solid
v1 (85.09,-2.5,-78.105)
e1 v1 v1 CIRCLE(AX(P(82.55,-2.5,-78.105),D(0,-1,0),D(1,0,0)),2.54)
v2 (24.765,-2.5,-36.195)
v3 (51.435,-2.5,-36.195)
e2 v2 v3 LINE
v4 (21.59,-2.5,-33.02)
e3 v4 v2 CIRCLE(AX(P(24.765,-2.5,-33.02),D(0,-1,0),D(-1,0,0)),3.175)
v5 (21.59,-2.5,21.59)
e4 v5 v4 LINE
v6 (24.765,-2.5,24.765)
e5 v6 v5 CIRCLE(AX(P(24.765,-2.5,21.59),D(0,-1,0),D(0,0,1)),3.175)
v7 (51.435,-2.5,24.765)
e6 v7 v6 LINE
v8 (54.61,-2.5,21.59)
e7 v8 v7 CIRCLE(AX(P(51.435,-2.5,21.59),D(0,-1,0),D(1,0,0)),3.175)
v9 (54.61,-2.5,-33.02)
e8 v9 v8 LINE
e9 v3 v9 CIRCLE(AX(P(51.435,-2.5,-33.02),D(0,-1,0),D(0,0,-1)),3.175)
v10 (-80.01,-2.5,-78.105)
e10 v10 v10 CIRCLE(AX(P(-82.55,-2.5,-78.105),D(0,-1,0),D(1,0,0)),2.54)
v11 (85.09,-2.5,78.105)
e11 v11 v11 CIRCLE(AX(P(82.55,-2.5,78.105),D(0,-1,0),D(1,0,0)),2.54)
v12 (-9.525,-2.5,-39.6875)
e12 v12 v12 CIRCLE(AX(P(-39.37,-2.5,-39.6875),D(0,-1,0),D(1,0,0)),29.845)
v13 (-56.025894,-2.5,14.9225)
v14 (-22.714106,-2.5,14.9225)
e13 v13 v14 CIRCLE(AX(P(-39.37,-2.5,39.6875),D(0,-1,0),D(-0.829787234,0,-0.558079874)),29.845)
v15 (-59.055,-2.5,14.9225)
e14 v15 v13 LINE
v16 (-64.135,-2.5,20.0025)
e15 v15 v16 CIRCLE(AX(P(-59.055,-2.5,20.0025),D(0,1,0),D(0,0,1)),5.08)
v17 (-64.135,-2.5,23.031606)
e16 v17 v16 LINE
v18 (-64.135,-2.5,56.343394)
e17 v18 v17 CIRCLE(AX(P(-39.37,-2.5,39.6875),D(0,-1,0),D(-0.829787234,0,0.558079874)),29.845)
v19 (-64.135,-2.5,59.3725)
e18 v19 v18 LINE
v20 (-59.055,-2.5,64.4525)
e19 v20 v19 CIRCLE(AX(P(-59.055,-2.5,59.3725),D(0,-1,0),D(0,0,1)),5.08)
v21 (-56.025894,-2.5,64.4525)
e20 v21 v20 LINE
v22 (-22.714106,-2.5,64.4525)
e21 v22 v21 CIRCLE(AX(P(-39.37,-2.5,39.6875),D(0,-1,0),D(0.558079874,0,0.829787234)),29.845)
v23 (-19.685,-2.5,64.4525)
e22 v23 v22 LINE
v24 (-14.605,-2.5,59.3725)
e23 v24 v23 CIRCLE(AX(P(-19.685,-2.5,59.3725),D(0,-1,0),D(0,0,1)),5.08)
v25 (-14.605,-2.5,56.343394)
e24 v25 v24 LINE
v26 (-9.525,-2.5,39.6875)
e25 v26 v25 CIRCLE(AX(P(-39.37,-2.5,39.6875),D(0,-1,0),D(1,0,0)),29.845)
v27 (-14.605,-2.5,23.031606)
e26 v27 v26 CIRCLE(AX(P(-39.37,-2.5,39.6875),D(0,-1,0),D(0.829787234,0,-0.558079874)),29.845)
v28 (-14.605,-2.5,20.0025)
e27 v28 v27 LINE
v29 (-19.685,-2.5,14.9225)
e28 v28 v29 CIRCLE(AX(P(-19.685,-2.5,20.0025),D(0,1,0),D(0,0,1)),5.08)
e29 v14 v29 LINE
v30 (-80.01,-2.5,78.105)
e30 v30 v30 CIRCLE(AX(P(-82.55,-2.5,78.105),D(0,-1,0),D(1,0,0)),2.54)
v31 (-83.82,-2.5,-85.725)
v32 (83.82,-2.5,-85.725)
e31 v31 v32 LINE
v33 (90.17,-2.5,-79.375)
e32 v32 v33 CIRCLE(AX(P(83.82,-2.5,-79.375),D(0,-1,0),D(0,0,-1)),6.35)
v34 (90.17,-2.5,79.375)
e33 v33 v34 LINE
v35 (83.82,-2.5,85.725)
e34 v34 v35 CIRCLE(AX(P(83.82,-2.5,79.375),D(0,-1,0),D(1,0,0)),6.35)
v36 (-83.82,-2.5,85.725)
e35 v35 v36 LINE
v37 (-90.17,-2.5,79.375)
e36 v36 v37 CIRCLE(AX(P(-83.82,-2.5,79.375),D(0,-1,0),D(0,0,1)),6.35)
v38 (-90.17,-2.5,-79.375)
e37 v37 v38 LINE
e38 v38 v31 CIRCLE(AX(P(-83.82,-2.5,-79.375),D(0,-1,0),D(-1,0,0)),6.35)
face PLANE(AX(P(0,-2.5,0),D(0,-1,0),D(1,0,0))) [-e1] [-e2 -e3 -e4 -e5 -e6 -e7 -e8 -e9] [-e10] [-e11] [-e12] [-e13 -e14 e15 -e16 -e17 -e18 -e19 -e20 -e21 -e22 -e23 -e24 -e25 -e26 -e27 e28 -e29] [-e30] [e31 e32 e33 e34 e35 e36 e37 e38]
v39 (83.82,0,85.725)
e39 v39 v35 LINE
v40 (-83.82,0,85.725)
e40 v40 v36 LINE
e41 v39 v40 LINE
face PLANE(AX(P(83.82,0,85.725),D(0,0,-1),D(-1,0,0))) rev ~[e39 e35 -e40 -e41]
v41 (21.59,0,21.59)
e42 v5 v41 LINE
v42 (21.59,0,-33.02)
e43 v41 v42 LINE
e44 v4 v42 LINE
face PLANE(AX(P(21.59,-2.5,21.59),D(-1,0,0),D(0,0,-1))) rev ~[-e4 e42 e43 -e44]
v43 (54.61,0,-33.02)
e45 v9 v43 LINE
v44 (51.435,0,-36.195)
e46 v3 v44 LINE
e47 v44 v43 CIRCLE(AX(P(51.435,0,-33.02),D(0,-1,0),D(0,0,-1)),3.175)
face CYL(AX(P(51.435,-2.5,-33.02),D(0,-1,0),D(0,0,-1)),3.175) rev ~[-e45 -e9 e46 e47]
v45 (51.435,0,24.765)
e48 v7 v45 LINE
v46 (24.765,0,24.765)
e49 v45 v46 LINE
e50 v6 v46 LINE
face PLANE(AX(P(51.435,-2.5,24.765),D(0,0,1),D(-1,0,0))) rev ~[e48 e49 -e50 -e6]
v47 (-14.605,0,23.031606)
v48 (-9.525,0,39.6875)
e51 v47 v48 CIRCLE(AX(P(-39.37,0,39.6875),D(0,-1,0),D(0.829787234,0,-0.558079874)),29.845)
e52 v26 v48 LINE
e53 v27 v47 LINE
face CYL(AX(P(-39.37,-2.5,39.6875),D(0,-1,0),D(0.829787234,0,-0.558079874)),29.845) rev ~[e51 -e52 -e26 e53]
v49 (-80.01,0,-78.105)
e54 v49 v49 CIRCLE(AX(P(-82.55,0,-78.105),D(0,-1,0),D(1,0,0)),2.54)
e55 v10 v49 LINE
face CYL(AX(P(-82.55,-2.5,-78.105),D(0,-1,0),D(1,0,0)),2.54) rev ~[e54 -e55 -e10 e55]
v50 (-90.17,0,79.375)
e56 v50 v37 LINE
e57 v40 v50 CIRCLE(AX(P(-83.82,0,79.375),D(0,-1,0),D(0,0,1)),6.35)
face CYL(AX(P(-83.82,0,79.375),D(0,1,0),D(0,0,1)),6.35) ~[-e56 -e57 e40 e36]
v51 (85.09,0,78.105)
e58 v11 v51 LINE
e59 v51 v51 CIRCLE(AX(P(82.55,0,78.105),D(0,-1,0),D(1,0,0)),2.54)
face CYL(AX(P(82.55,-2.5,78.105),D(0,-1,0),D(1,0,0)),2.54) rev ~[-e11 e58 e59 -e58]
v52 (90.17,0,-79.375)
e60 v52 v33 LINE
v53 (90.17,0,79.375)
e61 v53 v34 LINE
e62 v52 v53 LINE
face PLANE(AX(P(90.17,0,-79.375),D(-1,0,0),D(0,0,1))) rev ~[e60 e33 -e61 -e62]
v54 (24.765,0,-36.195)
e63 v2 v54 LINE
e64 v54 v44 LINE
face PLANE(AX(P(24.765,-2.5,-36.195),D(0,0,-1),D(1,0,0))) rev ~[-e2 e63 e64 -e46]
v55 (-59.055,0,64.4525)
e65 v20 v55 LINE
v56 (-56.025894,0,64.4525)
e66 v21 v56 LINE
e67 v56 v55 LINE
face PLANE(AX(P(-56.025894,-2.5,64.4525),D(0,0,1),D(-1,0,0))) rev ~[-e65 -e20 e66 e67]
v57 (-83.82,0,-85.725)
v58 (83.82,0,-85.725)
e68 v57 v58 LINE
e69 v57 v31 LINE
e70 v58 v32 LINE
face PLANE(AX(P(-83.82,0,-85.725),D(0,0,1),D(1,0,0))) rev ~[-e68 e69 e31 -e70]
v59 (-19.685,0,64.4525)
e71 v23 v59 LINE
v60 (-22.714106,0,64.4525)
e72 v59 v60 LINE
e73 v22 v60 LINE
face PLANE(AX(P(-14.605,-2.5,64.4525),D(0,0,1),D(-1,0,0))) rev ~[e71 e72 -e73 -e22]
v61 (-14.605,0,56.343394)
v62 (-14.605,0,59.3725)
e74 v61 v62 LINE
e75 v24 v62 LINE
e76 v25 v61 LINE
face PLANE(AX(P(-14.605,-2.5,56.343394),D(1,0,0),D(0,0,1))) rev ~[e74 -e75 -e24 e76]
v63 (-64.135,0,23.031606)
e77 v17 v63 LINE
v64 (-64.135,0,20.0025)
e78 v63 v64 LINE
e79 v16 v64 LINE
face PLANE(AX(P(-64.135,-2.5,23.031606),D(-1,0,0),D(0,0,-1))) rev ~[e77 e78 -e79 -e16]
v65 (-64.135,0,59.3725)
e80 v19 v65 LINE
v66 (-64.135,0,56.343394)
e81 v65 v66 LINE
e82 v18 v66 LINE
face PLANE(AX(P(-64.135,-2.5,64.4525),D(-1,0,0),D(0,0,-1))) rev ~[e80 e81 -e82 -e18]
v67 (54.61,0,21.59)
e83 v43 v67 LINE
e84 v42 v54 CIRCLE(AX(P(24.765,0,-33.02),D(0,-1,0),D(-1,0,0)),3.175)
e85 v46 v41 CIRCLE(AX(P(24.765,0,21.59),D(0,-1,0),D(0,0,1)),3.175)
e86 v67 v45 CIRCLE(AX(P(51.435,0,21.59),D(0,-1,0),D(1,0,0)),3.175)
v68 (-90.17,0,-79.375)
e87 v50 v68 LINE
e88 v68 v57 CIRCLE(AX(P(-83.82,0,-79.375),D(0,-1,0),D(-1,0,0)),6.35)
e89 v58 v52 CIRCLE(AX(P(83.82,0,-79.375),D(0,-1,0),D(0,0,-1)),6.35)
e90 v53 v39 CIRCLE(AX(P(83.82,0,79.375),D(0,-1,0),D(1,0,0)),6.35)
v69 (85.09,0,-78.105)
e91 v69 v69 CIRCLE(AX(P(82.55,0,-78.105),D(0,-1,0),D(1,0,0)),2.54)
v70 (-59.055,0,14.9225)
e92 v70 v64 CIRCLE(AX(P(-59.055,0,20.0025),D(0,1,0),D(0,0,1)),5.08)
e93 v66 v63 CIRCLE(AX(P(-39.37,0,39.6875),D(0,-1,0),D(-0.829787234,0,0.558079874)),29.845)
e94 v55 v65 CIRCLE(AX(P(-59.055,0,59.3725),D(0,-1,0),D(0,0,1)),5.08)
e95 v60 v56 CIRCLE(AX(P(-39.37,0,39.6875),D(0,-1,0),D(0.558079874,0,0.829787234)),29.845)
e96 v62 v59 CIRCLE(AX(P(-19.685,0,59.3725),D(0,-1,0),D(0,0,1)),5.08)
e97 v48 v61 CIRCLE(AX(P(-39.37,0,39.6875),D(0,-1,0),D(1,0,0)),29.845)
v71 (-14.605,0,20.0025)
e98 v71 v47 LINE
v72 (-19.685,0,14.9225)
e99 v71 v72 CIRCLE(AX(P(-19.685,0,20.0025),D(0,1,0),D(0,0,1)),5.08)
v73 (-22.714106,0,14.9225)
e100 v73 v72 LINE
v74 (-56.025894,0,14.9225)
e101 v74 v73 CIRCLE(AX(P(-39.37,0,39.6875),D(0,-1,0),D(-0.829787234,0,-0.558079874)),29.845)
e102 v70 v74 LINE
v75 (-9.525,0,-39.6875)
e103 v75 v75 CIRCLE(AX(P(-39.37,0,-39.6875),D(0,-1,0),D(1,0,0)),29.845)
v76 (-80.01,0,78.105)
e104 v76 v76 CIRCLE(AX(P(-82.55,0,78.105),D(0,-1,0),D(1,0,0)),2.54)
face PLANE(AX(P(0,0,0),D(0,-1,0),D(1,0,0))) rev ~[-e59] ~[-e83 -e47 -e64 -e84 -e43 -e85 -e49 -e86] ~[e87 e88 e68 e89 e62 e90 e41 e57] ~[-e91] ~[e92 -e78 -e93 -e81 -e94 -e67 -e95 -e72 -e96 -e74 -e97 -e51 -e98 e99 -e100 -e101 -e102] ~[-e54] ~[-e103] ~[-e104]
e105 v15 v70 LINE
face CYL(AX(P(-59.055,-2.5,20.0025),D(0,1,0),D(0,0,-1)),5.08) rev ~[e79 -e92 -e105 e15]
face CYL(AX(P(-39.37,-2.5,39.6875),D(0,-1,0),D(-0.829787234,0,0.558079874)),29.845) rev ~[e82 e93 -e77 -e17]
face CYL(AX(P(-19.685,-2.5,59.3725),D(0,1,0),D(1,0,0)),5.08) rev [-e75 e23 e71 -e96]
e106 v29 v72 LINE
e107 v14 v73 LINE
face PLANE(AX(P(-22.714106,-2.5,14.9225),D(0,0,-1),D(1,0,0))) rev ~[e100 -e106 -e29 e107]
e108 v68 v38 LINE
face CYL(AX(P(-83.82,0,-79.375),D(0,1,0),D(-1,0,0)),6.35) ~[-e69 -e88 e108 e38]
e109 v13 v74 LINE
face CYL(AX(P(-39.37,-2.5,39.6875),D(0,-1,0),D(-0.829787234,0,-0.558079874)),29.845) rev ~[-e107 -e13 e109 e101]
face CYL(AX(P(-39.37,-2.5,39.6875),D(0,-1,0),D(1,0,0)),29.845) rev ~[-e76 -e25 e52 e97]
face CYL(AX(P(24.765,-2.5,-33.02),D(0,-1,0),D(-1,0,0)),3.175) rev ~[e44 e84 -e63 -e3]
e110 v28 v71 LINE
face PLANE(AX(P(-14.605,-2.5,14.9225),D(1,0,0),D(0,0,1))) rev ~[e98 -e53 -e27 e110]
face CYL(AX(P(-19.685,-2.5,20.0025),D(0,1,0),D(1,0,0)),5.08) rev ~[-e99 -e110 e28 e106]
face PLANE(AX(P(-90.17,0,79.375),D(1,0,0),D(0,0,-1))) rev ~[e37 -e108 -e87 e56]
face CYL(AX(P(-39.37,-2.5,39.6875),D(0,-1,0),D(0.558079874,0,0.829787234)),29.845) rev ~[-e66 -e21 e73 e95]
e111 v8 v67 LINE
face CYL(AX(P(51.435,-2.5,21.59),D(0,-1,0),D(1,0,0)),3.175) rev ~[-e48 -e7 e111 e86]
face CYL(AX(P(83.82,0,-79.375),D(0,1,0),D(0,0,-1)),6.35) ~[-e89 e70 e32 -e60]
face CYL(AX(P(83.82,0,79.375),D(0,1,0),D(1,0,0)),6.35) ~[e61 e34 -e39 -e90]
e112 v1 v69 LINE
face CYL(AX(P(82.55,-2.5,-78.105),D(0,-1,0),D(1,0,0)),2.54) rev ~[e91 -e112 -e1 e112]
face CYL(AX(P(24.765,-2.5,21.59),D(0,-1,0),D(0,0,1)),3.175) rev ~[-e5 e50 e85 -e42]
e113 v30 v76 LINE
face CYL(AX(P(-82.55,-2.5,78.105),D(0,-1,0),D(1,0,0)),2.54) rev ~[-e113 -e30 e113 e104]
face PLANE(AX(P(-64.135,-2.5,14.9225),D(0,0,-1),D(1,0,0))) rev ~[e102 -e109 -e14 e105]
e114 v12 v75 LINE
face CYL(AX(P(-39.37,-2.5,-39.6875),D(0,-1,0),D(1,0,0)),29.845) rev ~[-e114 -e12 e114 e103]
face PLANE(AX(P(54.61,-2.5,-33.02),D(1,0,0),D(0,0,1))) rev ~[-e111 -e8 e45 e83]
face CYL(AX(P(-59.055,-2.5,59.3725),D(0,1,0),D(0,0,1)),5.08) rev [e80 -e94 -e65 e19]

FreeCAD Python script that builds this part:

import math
import FreeCAD as App
import Part
import Sketcher

V = App.Vector
Q = App.Units.Quantity


def edges_at(feature, points):
    """Names of the edges that pass closest to the given points."""
    edges = feature.Shape.Edges
    near = lambda p: min(range(len(edges)), key=lambda i: edges[i].distToShape(Part.Vertex(*p))[0])
    return sorted({f"Edge{near(p) + 1}" for p in points})

doc = App.newDocument("Part")
body = doc.addObject("PartDesign::Body", "Body")

sketch1 = doc.addObject("Sketcher::SketchObject", "Sketch")
body.addObject(sketch1)
sketch1.AttachmentSupport = (doc.XZ_Plane, [""])
sketch1.MapMode = "FlatFace"
sketch1.addGeometry(Part.ArcOfCircle(Part.Circle(V(84, 79, 0), V(0, 0, 1), 6), math.radians(0), math.radians(90)), False)
sketch1.addGeometry(Part.LineSegment(V(84, 86, 0), V(-84, 86, 0)), False)
sketch1.addGeometry(Part.ArcOfCircle(Part.Circle(V(-84, 79, 0), V(0, 0, 1), 6), math.radians(90), math.radians(180)), False)
sketch1.addGeometry(Part.LineSegment(V(-90, 79, 0), V(-90, -79, 0)), False)
sketch1.addGeometry(Part.ArcOfCircle(Part.Circle(V(-84, -79, 0), V(0, 0, 1), 6), math.radians(180), math.radians(270)), False)
sketch1.addGeometry(Part.LineSegment(V(-84, -86, 0), V(84, -86, 0)), False)
sketch1.addGeometry(Part.ArcOfCircle(Part.Circle(V(84, -79, 0), V(0, 0, 1), 6), math.radians(-90), math.radians(0)), False)
sketch1.addGeometry(Part.LineSegment(V(90, -79, 0), V(90, 79, 0)), False)
sketch1.addConstraint(Sketcher.Constraint("Tangent", 0, 2, 1, 1))
sketch1.addConstraint(Sketcher.Constraint("Tangent", 1, 2, 2, 1))
sketch1.addConstraint(Sketcher.Constraint("Tangent", 2, 2, 3, 1))
sketch1.addConstraint(Sketcher.Constraint("Tangent", 3, 2, 4, 1))
sketch1.addConstraint(Sketcher.Constraint("Tangent", 4, 2, 5, 1))
sketch1.addConstraint(Sketcher.Constraint("Tangent", 5, 2, 6, 1))
sketch1.addConstraint(Sketcher.Constraint("Tangent", 6, 2, 7, 1))
sketch1.addConstraint(Sketcher.Constraint("Tangent", 7, 2, 0, 1))
sketch1.addConstraint(Sketcher.Constraint("Horizontal", 1))
sketch1.addConstraint(Sketcher.Constraint("Vertical", 3))
sketch1.addConstraint(Sketcher.Constraint("Horizontal", 5))
sketch1.addConstraint(Sketcher.Constraint("Vertical", 7))
sketch1.addConstraint(Sketcher.Constraint("Equal", 0, 2))
sketch1.addConstraint(Sketcher.Constraint("Equal", 2, 4))
sketch1.addConstraint(Sketcher.Constraint("Equal", 4, 6))
sketch1.addConstraint(Sketcher.Constraint("Symmetric", 0, 3, 4, 3, -1, 1))
sketch1.addConstraint(Sketcher.Constraint("Radius", 0, Q("0.25 in")))
sketch1.addConstraint(Sketcher.Constraint("DistanceX", 1, 2, 1, 1, Q("6.6 in")))
sketch1.addConstraint(Sketcher.Constraint("DistanceY", 3, 2, 3, 1, Q("6.25 in")))
pad1 = doc.addObject("PartDesign::Pad", "Pad")
body.addObject(pad1)
pad1.Profile = sketch1
pad1.Length = 2.5

sketch2 = doc.addObject("Sketcher::SketchObject", "Sketch001")
body.addObject(sketch2)
sketch2.AttachmentSupport = (doc.XZ_Plane, [""])
sketch2.MapMode = "FlatFace"
sketch2.AttachmentOffset = App.Placement(V(0, 0, 2.5), App.Rotation())
sketch2.addGeometry(Part.LineSegment(V(51.4, 24.8, 0), V(24.8, 24.8, 0)), False)
sketch2.addGeometry(Part.ArcOfCircle(Part.Circle(V(24.8, 21.6, 0), V(0, 0, 1), 3.2), math.radians(90), math.radians(180)), False)
sketch2.addGeometry(Part.LineSegment(V(21.6, 21.6, 0), V(21.6, -33, 0)), False)
sketch2.addGeometry(Part.ArcOfCircle(Part.Circle(V(24.8, -33, 0), V(0, 0, 1), 3.2), math.radians(180), math.radians(270)), False)
sketch2.addGeometry(Part.LineSegment(V(24.8, -36.2, 0), V(51.4, -36.2, 0)), False)
sketch2.addGeometry(Part.ArcOfCircle(Part.Circle(V(51.4, -33, 0), V(0, 0, 1), 3.2), math.radians(-90), math.radians(0)), False)
sketch2.addGeometry(Part.LineSegment(V(54.6, -33, 0), V(54.6, 21.6, 0)), False)
sketch2.addGeometry(Part.ArcOfCircle(Part.Circle(V(51.4, 21.6, 0), V(0, 0, 1), 3.2), math.radians(0), math.radians(90)), False)
sketch2.addConstraint(Sketcher.Constraint("Tangent", 0, 2, 1, 1))
sketch2.addConstraint(Sketcher.Constraint("Tangent", 1, 2, 2, 1))
sketch2.addConstraint(Sketcher.Constraint("Tangent", 2, 2, 3, 1))
sketch2.addConstraint(Sketcher.Constraint("Tangent", 3, 2, 4, 1))
sketch2.addConstraint(Sketcher.Constraint("Tangent", 4, 2, 5, 1))
sketch2.addConstraint(Sketcher.Constraint("Tangent", 5, 2, 6, 1))
sketch2.addConstraint(Sketcher.Constraint("Tangent", 6, 2, 7, 1))
sketch2.addConstraint(Sketcher.Constraint("Tangent", 7, 2, 0, 1))
sketch2.addConstraint(Sketcher.Constraint("Horizontal", 0))
sketch2.addConstraint(Sketcher.Constraint("Vertical", 2))
sketch2.addConstraint(Sketcher.Constraint("Horizontal", 4))
sketch2.addConstraint(Sketcher.Constraint("Vertical", 6))
sketch2.addConstraint(Sketcher.Constraint("Equal", 1, 3))
sketch2.addConstraint(Sketcher.Constraint("Equal", 3, 5))
sketch2.addConstraint(Sketcher.Constraint("Equal", 5, 7))
sketch2.addConstraint(Sketcher.Constraint("Radius", 1, Q("0.125 in")))
sketch2.addConstraint(Sketcher.Constraint("DistanceX", 0, 2, 0, 1, Q("1.05 in")))
sketch2.addConstraint(Sketcher.Constraint("DistanceY", 2, 2, 2, 1, Q("2.15 in")))
sketch2.addConstraint(Sketcher.Constraint("DistanceY", 3, 3, -1, 1, Q("1.3 in")))
sketch2.addConstraint(Sketcher.Constraint("DistanceX", -1, 1, 1, 2, Q("0.85 in")))
pocket1 = doc.addObject("PartDesign::Pocket", "Pocket")
body.addObject(pocket1)
pocket1.Profile = sketch2
pocket1.Length = Q("1 in")

sketch3 = doc.addObject("Sketcher::SketchObject", "Sketch002")
body.addObject(sketch3)
sketch3.AttachmentSupport = (doc.XZ_Plane, [""])
sketch3.MapMode = "FlatFace"
sketch3.AttachmentOffset = App.Placement(V(0, 0, 2.5), App.Rotation())
sketch3.addGeometry(Part.ArcOfCircle(Part.Circle(V(-39, 40, 0), V(0, 0, 1), 30), math.radians(-34), math.radians(0)), False)
sketch3.addGeometry(Part.ArcOfCircle(Part.Circle(V(-39, 40, 0), V(0, 0, 1), 30), math.radians(0), math.radians(34)), False)
sketch3.addGeometry(Part.LineSegment(V(-15, 56, 0), V(-15, 64, 0)), False)
sketch3.addGeometry(Part.LineSegment(V(-15, 64, 0), V(-23, 64, 0)), False)
sketch3.addGeometry(Part.ArcOfCircle(Part.Circle(V(-39, 40, 0), V(0, 0, 1), 30), math.radians(56), math.radians(124)), False)
sketch3.addGeometry(Part.LineSegment(V(-56, 64, 0), V(-64, 64, 0)), False)
sketch3.addGeometry(Part.LineSegment(V(-64, 64, 0), V(-64, 56, 0)), False)
sketch3.addGeometry(Part.ArcOfCircle(Part.Circle(V(-39, 40, 0), V(0, 0, 1), 30), math.radians(146), math.radians(214)), False)
sketch3.addGeometry(Part.LineSegment(V(-64, 23, 0), V(-64, 15, 0)), False)
sketch3.addGeometry(Part.LineSegment(V(-64, 15, 0), V(-56, 15, 0)), False)
sketch3.addGeometry(Part.ArcOfCircle(Part.Circle(V(-39, 40, 0), V(0, 0, 1), 30), math.radians(-124), math.radians(-56)), False)
sketch3.addGeometry(Part.LineSegment(V(-23, 15, 0), V(-15, 15, 0)), False)
sketch3.addGeometry(Part.LineSegment(V(-15, 15, 0), V(-15, 23, 0)), False)
sketch3.addGeometry(Part.Circle(V(-39, -40, 0), V(0, 0, 1), 30), False)
sketch3.addConstraint(Sketcher.Constraint("Tangent", 0, 2, 1, 1))
sketch3.addConstraint(Sketcher.Constraint("Coincident", 1, 2, 2, 1))
sketch3.addConstraint(Sketcher.Constraint("Coincident", 2, 2, 3, 1))
sketch3.addConstraint(Sketcher.Constraint("Coincident", 3, 2, 4, 1))
sketch3.addConstraint(Sketcher.Constraint("Coincident", 4, 2, 5, 1))
sketch3.addConstraint(Sketcher.Constraint("Coincident", 5, 2, 6, 1))
sketch3.addConstraint(Sketcher.Constraint("Coincident", 6, 2, 7, 1))
sketch3.addConstraint(Sketcher.Constraint("Coincident", 7, 2, 8, 1))
sketch3.addConstraint(Sketcher.Constraint("Coincident", 8, 2, 9, 1))
sketch3.addConstraint(Sketcher.Constraint("Coincident", 9, 2, 10, 1))
sketch3.addConstraint(Sketcher.Constraint("Coincident", 10, 2, 11, 1))
sketch3.addConstraint(Sketcher.Constraint("Coincident", 11, 2, 12, 1))
sketch3.addConstraint(Sketcher.Constraint("Coincident", 12, 2, 0, 1))
sketch3.addConstraint(Sketcher.Constraint("Vertical", 2))
sketch3.addConstraint(Sketcher.Constraint("Horizontal", 3))
sketch3.addConstraint(Sketcher.Constraint("Horizontal", 5))
sketch3.addConstraint(Sketcher.Constraint("Vertical", 6))
sketch3.addConstraint(Sketcher.Constraint("Vertical", 8))
sketch3.addConstraint(Sketcher.Constraint("Horizontal", 9))
sketch3.addConstraint(Sketcher.Constraint("Horizontal", 11))
sketch3.addConstraint(Sketcher.Constraint("Vertical", 12))
sketch3.addConstraint(Sketcher.Constraint("Coincident", 4, 3, 0, 3))
sketch3.addConstraint(Sketcher.Constraint("Coincident", 7, 3, 0, 3))
sketch3.addConstraint(Sketcher.Constraint("Coincident", 10, 3, 0, 3))
sketch3.addConstraint(Sketcher.Constraint("Equal", 0, 1))
sketch3.addConstraint(Sketcher.Constraint("Equal", 1, 4))
sketch3.addConstraint(Sketcher.Constraint("Equal", 4, 7))
sketch3.addConstraint(Sketcher.Constraint("Equal", 7, 10))
sketch3.addConstraint(Sketcher.Constraint("Equal", 10, 13))
sketch3.addConstraint(Sketcher.Constraint("Symmetric", 0, 3, 13, 3, -1))
sketch3.addConstraint(Sketcher.Constraint("Horizontal", 10, 3, 0, 2))
sketch3.addConstraint(Sketcher.Constraint("Horizontal", 3, 2, 4, 2))
sketch3.addConstraint(Sketcher.Constraint("Horizontal", 1, 2, 6, 2))
sketch3.addConstraint(Sketcher.Constraint("Horizontal", 9, 2, 10, 2))
sketch3.addConstraint(Sketcher.Constraint("Horizontal", 7, 2, 12, 2))
sketch3.addConstraint(Sketcher.Constraint("Vertical", 6, 2, 7, 2))
sketch3.addConstraint(Sketcher.Constraint("Vertical", 4, 2, 9, 2))
sketch3.addConstraint(Sketcher.Constraint("Equal", 11, 2))
sketch3.addConstraint(Sketcher.Constraint("Diameter", 13, Q("2.35 in")))
sketch3.addConstraint(Sketcher.Constraint("DistanceX", 1, 2, 0, 2, Q("0.2 in")))
sketch3.addConstraint(Sketcher.Constraint("DistanceX", 0, 3, -1, 1, Q("1.55 in")))
sketch3.addConstraint(Sketcher.Constraint("DistanceY", -1, 1, 0, 3, Q("1.5625 in")))
pocket2 = doc.addObject("PartDesign::Pocket", "Pocket001")
body.addObject(pocket2)
pocket2.Profile = sketch3
pocket2.Length = Q("1 in")

sketch4 = doc.addObject("Sketcher::SketchObject", "Sketch003")
body.addObject(sketch4)
sketch4.AttachmentSupport = (doc.XZ_Plane, [""])
sketch4.MapMode = "FlatFace"
sketch4.AttachmentOffset = App.Placement(V(0, 0, 2.5), App.Rotation())
sketch4.addGeometry(Part.Circle(V(-82.5, 78.1, 0), V(0, 0, 1), 2.5), False)
sketch4.addGeometry(Part.Circle(V(82.5, 78.1, 0), V(0, 0, 1), 2.5), False)
sketch4.addGeometry(Part.Circle(V(82.5, -78.1, 0), V(0, 0, 1), 2.5), False)
sketch4.addGeometry(Part.Circle(V(-82.5, -78.1, 0), V(0, 0, 1), 2.5), False)
sketch4.addConstraint(Sketcher.Constraint("Equal", 0, 1))
sketch4.addConstraint(Sketcher.Constraint("Equal", 1, 2))
sketch4.addConstraint(Sketcher.Constraint("Equal", 2, 3))
sketch4.addConstraint(Sketcher.Constraint("Symmetric", 0, 3, 2, 3, -1, 1))
sketch4.addConstraint(Sketcher.Constraint("Symmetric", 1, 3, 3, 3, -1, 1))
sketch4.addConstraint(Sketcher.Constraint("Symmetric", 0, 3, 1, 3, -2))
sketch4.addConstraint(Sketcher.Constraint("Diameter", 0, Q("0.2 in")))
sketch4.addConstraint(Sketcher.Constraint("DistanceX", 0, 3, 1, 3, Q("6.5 in")))
sketch4.addConstraint(Sketcher.Constraint("DistanceY", 2, 3, 1, 3, Q("6.15 in")))
pocket3 = doc.addObject("PartDesign::Pocket", "Pocket002")
body.addObject(pocket3)
pocket3.Profile = sketch4
pocket3.Length = Q("1 in")
doc.recompute()

fillet = doc.addObject("PartDesign::Fillet", "Fillet")
body.addObject(fillet)
fillet.Base = (pocket3, edges_at(pocket3, [
    (-64.135, -1.25, 14.922),
    (-14.605, -1.25, 14.922),
    (-14.605, -1.25, 64.453),
    (-64.135, -1.25, 64.453),
]))
fillet.Radius = Q("0.2 in")

doc.recompute()
